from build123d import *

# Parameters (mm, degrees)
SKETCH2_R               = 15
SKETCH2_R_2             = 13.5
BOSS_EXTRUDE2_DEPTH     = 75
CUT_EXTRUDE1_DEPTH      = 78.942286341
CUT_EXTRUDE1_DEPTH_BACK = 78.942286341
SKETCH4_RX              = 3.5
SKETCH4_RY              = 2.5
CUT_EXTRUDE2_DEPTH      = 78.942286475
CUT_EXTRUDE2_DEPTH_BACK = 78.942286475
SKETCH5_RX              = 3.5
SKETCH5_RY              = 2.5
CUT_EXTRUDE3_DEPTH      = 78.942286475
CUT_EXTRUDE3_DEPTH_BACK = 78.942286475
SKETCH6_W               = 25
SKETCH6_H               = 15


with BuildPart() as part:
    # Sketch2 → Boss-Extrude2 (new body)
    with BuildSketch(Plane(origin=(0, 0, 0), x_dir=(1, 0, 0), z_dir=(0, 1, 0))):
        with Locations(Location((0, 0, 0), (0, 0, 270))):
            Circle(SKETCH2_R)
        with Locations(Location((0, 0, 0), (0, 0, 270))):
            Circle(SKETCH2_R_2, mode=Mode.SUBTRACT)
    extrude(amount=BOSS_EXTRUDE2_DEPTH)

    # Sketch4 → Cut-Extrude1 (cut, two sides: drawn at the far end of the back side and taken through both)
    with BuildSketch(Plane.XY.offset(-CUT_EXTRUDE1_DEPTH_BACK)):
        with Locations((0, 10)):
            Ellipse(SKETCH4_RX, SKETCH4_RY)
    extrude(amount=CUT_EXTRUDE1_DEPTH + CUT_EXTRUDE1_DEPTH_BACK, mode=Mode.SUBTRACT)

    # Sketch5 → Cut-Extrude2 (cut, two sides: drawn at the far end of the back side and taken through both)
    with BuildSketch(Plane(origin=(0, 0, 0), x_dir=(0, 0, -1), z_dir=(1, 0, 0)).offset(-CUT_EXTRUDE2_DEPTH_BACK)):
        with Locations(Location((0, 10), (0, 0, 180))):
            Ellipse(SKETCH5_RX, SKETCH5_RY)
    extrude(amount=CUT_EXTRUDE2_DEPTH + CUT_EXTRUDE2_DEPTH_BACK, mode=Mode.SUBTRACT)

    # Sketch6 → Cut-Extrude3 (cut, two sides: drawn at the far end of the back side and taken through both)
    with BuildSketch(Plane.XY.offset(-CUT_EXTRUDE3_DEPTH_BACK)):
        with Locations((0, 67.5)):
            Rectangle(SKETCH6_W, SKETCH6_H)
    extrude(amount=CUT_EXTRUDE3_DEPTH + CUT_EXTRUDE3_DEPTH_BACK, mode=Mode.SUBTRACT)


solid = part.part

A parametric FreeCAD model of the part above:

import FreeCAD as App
import Part
import Sketcher
Q = App.Units.Quantity


def add_polygon(sketch, points):
    """Adds a closed chain of lines whose ends are joined by coincident constraints."""
    first, n = sketch.GeometryCount, len(points)
    for a, b in zip(points, points[1:] + points[:1]):
        sketch.addGeometry(Part.LineSegment(App.Vector(*a, 0), App.Vector(*b, 0)), False)
    for i in range(n):
        sketch.addConstraint(Sketcher.Constraint("Coincident", first + i, 2, first + (i + 1) % n, 1))

doc = App.newDocument("Part")
body = doc.addObject("PartDesign::Body", "Body")

# Sketch on XZ plane
sketch1 = doc.addObject("Sketcher::SketchObject", "Sketch")
body.addObject(sketch1)
sketch1.AttachmentSupport = (doc.XZ_Plane, [""])
sketch1.MapMode = "FlatFace"
sketch1.addGeometry([
    Part.Circle(App.Vector(0, 0, 0), App.Vector(0, 0, 1), 15),
    Part.Circle(App.Vector(0, 0, 0), App.Vector(0, 0, 1), 14),
], False)
sketch1.addConstraint([
    Sketcher.Constraint("Coincident", 0, 3, -1, 1),
    Sketcher.Constraint("Coincident", 1, 3, -1, 1),
    Sketcher.Constraint("Diameter", 0, Q("30 mm")),
    Sketcher.Constraint("Diameter", 1, Q("27 mm")),
])
pad1 = doc.addObject("PartDesign::Pad", "Pad")
body.addObject(pad1)
pad1.Profile = sketch1
pad1.Length = 75
pad1.Reversed = True

# Sketch on XY plane
sketch2 = doc.addObject("Sketcher::SketchObject", "Sketch001")
body.addObject(sketch2)
sketch2.AttachmentSupport = (doc.XY_Plane, [""])
sketch2.MapMode = "FlatFace"
sketch2.addGeometry(Part.Ellipse(App.Vector(3.5, 10, 0), App.Vector(0, 12.5, 0), App.Vector(0, 10, 0)), False)
sketch2.addConstraint(Sketcher.Constraint("Block", 0))
pocket1 = doc.addObject("PartDesign::Pocket", "Pocket")
body.addObject(pocket1)
pocket1.Profile = sketch2
pocket1.Type = "ThroughAll"
pocket1.Midplane = True

# Sketch on YZ plane
sketch3 = doc.addObject("Sketcher::SketchObject", "Sketch002")
body.addObject(sketch3)
sketch3.AttachmentSupport = (doc.YZ_Plane, [""])
sketch3.MapMode = "FlatFace"
sketch3.addGeometry(Part.Ellipse(App.Vector(10, 3.5, 0), App.Vector(7.5, 0, 0), App.Vector(10, 0, 0)), False)
sketch3.addConstraint(Sketcher.Constraint("Block", 0))
pocket2 = doc.addObject("PartDesign::Pocket", "Pocket001")
body.addObject(pocket2)
pocket2.Profile = sketch3
pocket2.Type = "ThroughAll"
pocket2.Midplane = True

# Sketch on XY plane
sketch4 = doc.addObject("Sketcher::SketchObject", "Sketch003")
body.addObject(sketch4)
sketch4.AttachmentSupport = (doc.XY_Plane, [""])
sketch4.MapMode = "FlatFace"
add_polygon(sketch4, [(-12, 75), (-12, 60), (12, 60), (12, 75)])  # lines 0-3
sketch4.addConstraint([
    Sketcher.Constraint("Vertical", 0),
    Sketcher.Constraint("Horizontal", 1),
    Sketcher.Constraint("Vertical", 2),
    Sketcher.Constraint("Horizontal", 3),
    Sketcher.Constraint("DistanceX", 1, 1, 1, 2, Q("25 mm")),
    Sketcher.Constraint("DistanceY", 0, 2, 0, 1, Q("15 mm")),
    Sketcher.Constraint("DistanceY", -1, 1, 0, 2, Q("60 mm")),
    Sketcher.Constraint("DistanceX", 0, 2, -1, 1, Q("12.5 mm")),
])
pocket3 = doc.addObject("PartDesign::Pocket", "Pocket002")
body.addObject(pocket3)
pocket3.Profile = sketch4
pocket3.Type = "ThroughAll"
pocket3.Midplane = True

doc.recompute()
